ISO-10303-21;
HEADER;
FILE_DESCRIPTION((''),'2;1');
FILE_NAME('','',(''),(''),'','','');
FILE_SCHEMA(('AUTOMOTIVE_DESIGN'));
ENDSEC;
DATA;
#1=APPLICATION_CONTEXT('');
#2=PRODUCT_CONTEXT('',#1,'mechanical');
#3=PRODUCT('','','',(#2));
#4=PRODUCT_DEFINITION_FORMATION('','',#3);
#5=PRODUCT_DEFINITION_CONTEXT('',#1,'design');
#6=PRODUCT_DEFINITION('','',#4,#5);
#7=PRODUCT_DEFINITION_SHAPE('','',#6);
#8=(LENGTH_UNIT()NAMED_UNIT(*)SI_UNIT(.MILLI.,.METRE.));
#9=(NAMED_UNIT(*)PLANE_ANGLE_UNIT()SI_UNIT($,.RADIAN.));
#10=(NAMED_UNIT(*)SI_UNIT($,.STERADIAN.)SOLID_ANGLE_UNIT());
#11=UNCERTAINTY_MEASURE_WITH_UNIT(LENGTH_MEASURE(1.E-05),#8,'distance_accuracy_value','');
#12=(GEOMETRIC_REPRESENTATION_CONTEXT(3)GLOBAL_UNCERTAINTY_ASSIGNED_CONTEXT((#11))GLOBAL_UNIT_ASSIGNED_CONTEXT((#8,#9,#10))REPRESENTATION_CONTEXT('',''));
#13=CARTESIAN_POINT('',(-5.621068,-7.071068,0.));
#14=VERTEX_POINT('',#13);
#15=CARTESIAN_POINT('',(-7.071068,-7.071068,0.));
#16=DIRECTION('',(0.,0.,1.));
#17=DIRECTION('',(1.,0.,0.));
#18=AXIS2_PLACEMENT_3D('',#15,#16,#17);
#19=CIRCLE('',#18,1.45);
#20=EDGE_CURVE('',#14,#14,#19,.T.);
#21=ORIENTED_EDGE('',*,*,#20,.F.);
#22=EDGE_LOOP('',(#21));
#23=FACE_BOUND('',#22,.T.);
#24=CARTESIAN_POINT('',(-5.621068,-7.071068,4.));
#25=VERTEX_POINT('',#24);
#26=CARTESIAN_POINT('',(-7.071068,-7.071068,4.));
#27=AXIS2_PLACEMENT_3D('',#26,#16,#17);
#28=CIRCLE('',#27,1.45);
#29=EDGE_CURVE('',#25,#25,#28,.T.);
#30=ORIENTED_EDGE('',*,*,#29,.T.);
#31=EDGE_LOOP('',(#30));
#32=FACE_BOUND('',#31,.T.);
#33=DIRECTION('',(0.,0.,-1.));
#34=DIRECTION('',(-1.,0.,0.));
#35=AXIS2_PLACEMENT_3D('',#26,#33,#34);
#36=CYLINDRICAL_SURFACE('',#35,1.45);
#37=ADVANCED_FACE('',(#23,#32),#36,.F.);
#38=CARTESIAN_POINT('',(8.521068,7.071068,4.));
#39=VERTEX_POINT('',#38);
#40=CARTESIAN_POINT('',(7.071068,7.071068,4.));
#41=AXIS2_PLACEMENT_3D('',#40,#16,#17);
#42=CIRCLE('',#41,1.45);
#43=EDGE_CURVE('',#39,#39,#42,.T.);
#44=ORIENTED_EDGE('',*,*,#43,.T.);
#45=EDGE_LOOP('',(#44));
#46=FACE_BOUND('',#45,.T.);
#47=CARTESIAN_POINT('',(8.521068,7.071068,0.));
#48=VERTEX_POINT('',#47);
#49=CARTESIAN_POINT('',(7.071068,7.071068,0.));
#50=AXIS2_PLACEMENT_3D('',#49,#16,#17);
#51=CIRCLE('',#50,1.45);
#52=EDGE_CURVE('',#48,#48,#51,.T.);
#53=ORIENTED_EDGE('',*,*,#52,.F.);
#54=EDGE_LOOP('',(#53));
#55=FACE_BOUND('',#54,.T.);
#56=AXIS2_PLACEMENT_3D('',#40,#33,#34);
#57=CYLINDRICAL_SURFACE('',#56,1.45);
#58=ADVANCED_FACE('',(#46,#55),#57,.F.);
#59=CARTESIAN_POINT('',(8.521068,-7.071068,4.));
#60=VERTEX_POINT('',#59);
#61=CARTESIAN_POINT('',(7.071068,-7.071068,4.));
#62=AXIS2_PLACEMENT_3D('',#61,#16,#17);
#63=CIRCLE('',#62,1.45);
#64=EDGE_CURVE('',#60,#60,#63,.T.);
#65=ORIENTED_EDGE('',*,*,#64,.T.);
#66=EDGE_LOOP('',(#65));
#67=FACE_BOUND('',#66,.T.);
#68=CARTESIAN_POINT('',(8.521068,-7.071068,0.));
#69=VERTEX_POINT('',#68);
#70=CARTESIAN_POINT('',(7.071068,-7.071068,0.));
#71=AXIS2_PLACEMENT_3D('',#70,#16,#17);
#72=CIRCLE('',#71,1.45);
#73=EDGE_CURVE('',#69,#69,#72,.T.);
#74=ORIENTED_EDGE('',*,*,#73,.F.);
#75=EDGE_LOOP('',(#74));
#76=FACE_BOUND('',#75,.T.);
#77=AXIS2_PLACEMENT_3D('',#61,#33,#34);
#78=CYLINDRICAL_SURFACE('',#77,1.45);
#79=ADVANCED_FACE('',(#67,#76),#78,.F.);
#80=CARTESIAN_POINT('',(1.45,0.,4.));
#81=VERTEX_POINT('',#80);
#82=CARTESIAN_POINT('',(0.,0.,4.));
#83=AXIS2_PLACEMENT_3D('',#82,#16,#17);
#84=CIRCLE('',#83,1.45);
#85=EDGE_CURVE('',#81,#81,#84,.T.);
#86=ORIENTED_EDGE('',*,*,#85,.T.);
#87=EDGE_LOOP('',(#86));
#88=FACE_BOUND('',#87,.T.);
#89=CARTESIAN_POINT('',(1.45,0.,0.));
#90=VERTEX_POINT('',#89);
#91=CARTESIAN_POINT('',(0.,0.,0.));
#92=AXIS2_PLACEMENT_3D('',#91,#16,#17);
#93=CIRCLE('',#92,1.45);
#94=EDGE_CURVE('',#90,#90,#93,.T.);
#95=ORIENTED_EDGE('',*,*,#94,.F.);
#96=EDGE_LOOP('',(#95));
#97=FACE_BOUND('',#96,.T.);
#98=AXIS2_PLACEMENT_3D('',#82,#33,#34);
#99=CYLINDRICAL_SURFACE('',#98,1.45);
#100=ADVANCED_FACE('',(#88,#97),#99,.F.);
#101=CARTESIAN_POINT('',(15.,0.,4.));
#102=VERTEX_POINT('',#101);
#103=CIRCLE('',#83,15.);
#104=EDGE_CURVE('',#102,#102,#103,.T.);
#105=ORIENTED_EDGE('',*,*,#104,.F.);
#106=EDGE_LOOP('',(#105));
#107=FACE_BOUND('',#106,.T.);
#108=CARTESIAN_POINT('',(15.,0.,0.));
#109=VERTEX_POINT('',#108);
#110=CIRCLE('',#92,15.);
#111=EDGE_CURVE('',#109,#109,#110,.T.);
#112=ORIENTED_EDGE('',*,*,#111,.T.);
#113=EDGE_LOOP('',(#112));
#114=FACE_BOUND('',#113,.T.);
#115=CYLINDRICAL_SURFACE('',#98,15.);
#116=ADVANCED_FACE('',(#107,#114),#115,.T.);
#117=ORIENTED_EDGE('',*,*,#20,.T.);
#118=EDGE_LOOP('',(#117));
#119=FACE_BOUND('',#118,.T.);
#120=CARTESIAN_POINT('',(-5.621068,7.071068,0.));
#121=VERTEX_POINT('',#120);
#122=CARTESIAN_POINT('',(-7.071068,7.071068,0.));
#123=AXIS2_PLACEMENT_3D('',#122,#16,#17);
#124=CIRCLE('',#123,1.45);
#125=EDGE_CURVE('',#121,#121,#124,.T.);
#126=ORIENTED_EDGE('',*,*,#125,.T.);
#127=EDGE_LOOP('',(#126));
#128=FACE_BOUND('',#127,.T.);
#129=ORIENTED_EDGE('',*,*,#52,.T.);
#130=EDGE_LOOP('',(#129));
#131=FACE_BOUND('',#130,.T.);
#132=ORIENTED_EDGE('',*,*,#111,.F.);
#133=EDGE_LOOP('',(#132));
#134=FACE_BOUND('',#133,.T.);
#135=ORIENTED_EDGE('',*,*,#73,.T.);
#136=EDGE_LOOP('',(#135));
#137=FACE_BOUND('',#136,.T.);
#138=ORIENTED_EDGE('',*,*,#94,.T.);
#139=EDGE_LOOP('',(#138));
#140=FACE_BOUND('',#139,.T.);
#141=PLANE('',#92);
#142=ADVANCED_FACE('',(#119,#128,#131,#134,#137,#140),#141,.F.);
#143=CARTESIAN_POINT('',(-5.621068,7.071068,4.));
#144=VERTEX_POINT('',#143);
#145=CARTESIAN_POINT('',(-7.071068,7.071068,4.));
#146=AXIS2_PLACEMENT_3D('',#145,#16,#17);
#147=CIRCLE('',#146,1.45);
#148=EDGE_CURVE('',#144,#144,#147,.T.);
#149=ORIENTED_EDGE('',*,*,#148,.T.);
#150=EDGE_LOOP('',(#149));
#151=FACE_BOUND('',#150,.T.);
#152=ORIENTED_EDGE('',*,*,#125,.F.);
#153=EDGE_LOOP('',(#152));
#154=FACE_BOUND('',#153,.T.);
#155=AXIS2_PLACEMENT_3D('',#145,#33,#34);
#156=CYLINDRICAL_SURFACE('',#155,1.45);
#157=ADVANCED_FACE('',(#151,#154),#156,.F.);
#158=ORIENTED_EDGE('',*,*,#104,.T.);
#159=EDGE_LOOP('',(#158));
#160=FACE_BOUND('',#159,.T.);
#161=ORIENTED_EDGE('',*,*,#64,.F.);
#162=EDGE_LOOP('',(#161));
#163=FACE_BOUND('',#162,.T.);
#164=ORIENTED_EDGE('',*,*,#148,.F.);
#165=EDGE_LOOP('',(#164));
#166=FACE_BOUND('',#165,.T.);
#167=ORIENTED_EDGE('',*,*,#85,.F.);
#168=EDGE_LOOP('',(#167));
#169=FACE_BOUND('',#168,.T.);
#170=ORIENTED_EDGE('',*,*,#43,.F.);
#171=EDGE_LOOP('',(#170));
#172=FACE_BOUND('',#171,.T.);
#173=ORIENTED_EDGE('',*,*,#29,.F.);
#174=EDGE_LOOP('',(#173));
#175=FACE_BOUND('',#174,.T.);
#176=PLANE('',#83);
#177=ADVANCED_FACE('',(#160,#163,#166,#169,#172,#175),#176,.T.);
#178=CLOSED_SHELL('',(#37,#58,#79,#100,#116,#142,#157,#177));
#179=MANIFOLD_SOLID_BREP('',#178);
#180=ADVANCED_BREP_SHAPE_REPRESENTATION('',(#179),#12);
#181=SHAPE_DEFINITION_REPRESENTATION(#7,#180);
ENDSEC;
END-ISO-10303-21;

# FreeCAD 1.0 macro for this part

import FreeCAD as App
import Part
import Sketcher

V = App.Vector

doc = App.newDocument("Part")
body = doc.addObject("PartDesign::Body", "Body")

# Sketch on XY plane
sketch1 = body.newObject("Sketcher::SketchObject", "Sketch")
sketch1.AttachmentSupport = (doc.getObject("XY_Plane"), [""])
sketch1.MapMode = "FlatFace"
sketch1.addGeometry([
    Part.Circle(V(0, 0, 0), V(0, 0, 1), 15),  # 0
    Part.Circle(V(-7.071068, -7.071068, 0), V(0, 0, 1), 1.45),  # 1
    Part.Circle(V(7.071068, -7.071068, 0), V(0, 0, 1), 1.45),  # 2
    Part.Circle(V(0, 0, 0), V(0, 0, 1), 1.45),  # 3
    Part.Circle(V(-7.071068, 7.071068, 0), V(0, 0, 1), 1.45),  # 4
    Part.Circle(V(7.071068, 7.071068, 0), V(0, 0, 1), 1.45),  # 5
], False)
sketch1.addConstraint([
    Sketcher.Constraint("Coincident", 0, 3, -1, 1),
    Sketcher.Constraint("Coincident", 3, 3, -1, 1),
    Sketcher.Constraint("Equal", 1, 2),
    Sketcher.Constraint("Equal", 2, 3),
    Sketcher.Constraint("Equal", 3, 4),
    Sketcher.Constraint("Equal", 4, 5),
    Sketcher.Constraint("Symmetric", 2, 3, 4, 3, -1, 1),
    Sketcher.Constraint("Symmetric", 1, 3, 5, 3, -1, 1),
    Sketcher.Constraint("Symmetric", 1, 3, 2, 3, -2),
    Sketcher.Constraint("Diameter", 0, 30.0),
    Sketcher.Constraint("Diameter", 1, 2.9),
    Sketcher.Constraint("DistanceX", 1, 3, -1, 1, 7.071068),
    Sketcher.Constraint("DistanceY", 1, 3, -1, 1, 7.071068),
])
pad1 = body.newObject("PartDesign::Pad", "Pad")
pad1.Profile = sketch1
pad1.Length = 4

doc.recompute()
